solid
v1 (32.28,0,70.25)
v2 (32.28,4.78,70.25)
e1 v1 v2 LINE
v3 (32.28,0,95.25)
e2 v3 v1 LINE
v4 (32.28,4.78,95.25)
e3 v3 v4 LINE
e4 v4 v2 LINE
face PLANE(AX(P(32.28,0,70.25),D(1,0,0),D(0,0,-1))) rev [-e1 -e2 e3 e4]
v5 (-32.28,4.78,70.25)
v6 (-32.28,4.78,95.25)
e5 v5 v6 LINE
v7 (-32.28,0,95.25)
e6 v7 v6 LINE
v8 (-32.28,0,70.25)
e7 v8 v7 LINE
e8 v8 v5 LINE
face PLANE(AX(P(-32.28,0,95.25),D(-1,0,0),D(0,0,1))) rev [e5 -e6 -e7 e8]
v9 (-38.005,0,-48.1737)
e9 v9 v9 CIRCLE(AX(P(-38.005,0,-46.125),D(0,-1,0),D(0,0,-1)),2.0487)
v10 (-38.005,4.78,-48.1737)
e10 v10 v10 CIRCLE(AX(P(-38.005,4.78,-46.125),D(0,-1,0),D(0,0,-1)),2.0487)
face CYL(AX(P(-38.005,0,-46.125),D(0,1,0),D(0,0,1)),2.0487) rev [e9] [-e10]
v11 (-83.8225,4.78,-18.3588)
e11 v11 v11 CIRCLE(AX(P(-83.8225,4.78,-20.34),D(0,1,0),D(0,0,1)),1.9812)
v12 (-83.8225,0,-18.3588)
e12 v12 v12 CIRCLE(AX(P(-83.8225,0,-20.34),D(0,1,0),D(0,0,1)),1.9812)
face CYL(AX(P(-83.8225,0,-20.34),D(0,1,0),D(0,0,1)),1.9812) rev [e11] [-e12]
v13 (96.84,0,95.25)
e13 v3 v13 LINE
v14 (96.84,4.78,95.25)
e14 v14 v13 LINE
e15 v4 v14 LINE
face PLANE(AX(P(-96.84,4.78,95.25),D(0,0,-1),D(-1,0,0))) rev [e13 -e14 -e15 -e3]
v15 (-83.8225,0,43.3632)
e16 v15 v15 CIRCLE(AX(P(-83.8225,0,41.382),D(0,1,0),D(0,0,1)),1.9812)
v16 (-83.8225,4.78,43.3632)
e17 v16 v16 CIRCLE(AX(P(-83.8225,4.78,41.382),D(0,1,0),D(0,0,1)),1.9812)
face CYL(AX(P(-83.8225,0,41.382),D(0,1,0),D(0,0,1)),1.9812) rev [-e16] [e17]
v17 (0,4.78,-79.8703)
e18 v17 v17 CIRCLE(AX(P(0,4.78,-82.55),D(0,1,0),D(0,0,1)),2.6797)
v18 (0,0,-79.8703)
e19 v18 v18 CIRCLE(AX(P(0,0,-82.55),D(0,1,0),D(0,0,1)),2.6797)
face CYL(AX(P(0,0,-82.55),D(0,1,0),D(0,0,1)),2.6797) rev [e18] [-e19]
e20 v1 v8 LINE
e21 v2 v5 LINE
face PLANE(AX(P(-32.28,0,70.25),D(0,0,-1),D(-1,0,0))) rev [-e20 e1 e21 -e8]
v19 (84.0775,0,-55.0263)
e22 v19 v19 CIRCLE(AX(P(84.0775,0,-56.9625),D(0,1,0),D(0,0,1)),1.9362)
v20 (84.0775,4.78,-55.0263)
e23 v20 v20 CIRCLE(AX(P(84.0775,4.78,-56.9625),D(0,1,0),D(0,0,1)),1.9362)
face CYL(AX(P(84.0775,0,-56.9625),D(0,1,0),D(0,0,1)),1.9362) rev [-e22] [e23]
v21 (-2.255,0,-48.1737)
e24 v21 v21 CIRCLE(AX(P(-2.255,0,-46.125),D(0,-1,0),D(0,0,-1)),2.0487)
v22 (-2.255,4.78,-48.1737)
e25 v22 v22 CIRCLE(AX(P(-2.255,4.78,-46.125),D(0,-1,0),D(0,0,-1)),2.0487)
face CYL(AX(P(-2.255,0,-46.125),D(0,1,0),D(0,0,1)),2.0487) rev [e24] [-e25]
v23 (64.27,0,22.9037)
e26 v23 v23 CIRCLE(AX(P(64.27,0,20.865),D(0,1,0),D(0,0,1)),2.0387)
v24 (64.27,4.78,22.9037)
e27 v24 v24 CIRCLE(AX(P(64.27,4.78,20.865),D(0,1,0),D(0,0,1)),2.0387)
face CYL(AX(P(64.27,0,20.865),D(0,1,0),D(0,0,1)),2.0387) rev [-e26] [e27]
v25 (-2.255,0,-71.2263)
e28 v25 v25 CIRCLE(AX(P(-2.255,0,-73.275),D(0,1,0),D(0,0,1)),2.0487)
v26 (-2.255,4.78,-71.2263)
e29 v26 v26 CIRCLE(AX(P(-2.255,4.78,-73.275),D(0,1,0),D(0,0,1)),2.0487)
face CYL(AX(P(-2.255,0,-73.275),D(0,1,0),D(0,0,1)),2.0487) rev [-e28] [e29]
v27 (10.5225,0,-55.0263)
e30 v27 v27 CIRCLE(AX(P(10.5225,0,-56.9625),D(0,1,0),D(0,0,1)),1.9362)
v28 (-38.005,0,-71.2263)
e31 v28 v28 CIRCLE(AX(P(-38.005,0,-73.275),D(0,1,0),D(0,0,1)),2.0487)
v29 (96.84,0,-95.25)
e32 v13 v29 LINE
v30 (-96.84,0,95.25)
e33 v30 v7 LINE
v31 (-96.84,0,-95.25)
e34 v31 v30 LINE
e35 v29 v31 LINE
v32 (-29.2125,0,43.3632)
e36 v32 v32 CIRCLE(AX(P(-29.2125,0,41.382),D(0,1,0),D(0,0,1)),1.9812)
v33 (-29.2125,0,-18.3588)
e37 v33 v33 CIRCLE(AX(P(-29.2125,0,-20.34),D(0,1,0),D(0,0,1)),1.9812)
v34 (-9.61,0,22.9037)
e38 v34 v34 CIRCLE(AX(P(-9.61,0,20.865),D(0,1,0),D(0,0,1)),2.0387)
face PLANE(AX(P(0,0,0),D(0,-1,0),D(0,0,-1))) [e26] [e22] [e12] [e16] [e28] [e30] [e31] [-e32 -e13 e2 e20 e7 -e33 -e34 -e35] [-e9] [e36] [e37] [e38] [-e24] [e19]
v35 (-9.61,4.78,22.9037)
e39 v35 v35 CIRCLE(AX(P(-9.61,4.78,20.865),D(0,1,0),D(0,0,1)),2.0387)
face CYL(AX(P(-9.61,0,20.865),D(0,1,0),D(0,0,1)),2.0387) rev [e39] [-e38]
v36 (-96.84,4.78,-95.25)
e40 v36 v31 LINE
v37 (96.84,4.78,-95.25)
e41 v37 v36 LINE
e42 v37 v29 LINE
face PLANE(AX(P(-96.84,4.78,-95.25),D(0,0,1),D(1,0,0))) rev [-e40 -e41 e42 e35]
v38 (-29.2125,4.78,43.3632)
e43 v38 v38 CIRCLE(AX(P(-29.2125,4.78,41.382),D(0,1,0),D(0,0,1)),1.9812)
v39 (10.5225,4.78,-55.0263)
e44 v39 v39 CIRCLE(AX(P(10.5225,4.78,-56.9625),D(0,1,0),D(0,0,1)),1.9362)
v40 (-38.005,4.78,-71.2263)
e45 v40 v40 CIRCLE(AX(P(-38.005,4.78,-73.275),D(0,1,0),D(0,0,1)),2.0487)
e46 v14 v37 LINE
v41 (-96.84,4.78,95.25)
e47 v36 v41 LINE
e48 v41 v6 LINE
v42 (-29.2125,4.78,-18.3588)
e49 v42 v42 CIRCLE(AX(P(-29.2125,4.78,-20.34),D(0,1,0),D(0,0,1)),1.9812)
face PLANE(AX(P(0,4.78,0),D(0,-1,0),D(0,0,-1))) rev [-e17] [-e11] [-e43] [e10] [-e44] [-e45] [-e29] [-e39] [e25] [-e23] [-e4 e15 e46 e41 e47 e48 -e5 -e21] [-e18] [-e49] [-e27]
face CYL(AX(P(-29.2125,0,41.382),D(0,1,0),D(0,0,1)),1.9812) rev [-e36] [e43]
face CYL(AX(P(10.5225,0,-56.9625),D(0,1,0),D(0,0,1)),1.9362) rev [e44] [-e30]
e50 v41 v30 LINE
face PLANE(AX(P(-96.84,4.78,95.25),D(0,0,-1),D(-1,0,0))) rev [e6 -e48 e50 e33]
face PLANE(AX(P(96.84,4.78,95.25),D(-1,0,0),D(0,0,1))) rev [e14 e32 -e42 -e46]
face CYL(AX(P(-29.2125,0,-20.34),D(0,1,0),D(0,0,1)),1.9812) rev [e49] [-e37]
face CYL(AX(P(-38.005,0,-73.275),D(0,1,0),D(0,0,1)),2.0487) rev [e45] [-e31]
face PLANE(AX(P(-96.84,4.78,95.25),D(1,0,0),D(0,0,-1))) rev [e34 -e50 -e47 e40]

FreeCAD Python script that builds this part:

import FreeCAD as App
import Part
import Sketcher
from FreeCAD import Vector
Q = App.Units.Quantity

doc = App.newDocument("Part")
params = doc.addObject("Spreadsheet::Sheet", "Params")
for row, (alias, value) in enumerate([
    ("sketch1_height", "7.5 in"),
    ("pad1_length", "4.78 mm"),
    ("sketch2_diameter", "0.211 in"),
    ("sketch4_diameter", "0.156 in"),
], start=1):
    params.set(f"A{row}", alias)
    params.set(f"B{row}", "=" + value)
    params.setAlias(f"B{row}", alias)

body = doc.addObject("PartDesign::Body", "Body")

# Sketch on XZ plane
sketch1 = body.newObject("Sketcher::SketchObject", "Sketch")
sketch1.AttachmentSupport = (doc.getObject("XZ_Plane"), [""])
sketch1.MapMode = "FlatFace"
sketch1.addGeometry(Part.LineSegment(Vector(-96.84, -95.25, 0), Vector(-96.84, 95.25, 0)), False)
sketch1.addGeometry(Part.LineSegment(Vector(-96.84, 95.25, 0), Vector(96.84, 95.25, 0)), False)
sketch1.addGeometry(Part.LineSegment(Vector(96.84, 95.25, 0), Vector(96.84, -95.25, 0)), False)
sketch1.addGeometry(Part.LineSegment(Vector(96.84, -95.25, 0), Vector(-96.84, -95.25, 0)), False)
sketch1.addConstraint(Sketcher.Constraint("Coincident", 0, 2, 1, 1))
sketch1.addConstraint(Sketcher.Constraint("Coincident", 1, 2, 2, 1))
sketch1.addConstraint(Sketcher.Constraint("Coincident", 2, 2, 3, 1))
sketch1.addConstraint(Sketcher.Constraint("Coincident", 3, 2, 0, 1))
sketch1.addConstraint(Sketcher.Constraint("Vertical", 0))
sketch1.addConstraint(Sketcher.Constraint("Horizontal", 1))
sketch1.addConstraint(Sketcher.Constraint("Vertical", 2))
sketch1.addConstraint(Sketcher.Constraint("Horizontal", 3))
sketch1.addConstraint(Sketcher.Constraint("Symmetric", 0, 2, 2, 2, -1, 1))
sketch1.addConstraint(Sketcher.Constraint("DistanceY", 0, 1, 0, 2, Q("7.5 in")))
sketch1.addConstraint(Sketcher.Constraint("DistanceX", 1, 1, 1, 2, 193.68))
sketch1.setExpression("Constraints[9]", "Params.sketch1_height")
pad1 = body.newObject("PartDesign::Pad", "Pad")
pad1.Profile = sketch1
pad1.setExpression("Length", "Params.pad1_length")
pad1.Reversed = True

# Sketch on XZ plane
sketch2 = body.newObject("Sketcher::SketchObject", "Sketch001")
sketch2.AttachmentSupport = (doc.getObject("XZ_Plane"), [""])
sketch2.MapMode = "FlatFace"
sketch2.AttachmentOffset = App.Placement(Vector(0, 0, -4.78), App.Rotation())
sketch2.addGeometry(Part.Circle(Vector(0, -82.55, 0), Vector(0, 0, 1), 2.6797), False)
sketch2.addConstraint(Sketcher.Constraint("PointOnObject", 0, 3, -2))
sketch2.addConstraint(Sketcher.Constraint("Diameter", 0, Q("0.211 in")))
sketch2.addConstraint(Sketcher.Constraint("DistanceY", 0, 3, -1, 1, Q("3.25 in")))
sketch2.setExpression("Constraints[1]", "Params.sketch2_diameter")
pocket1 = body.newObject("PartDesign::Pocket", "Pocket")
pocket1.Profile = sketch2
pocket1.Type = "ThroughAll"
pocket1.Reversed = True

# Sketch on XZ plane
sketch3 = body.newObject("Sketcher::SketchObject", "Sketch002")
sketch3.AttachmentSupport = (doc.getObject("XZ_Plane"), [""])
sketch3.MapMode = "FlatFace"
sketch3.AttachmentOffset = App.Placement(Vector(0, 0, -4.78), App.Rotation())
sketch3.addGeometry(Part.LineSegment(Vector(-32.28, 95.25, 0), Vector(32.28, 95.25, 0)), False)
sketch3.addGeometry(Part.LineSegment(Vector(32.28, 95.25, 0), Vector(32.28, 70.25, 0)), False)
sketch3.addGeometry(Part.LineSegment(Vector(32.28, 70.25, 0), Vector(-32.28, 70.25, 0)), False)
sketch3.addGeometry(Part.LineSegment(Vector(-32.28, 70.25, 0), Vector(-32.28, 95.25, 0)), False)
sketch3.addConstraint(Sketcher.Constraint("Coincident", 0, 2, 1, 1))
sketch3.addConstraint(Sketcher.Constraint("Coincident", 1, 2, 2, 1))
sketch3.addConstraint(Sketcher.Constraint("Coincident", 2, 2, 3, 1))
sketch3.addConstraint(Sketcher.Constraint("Coincident", 3, 2, 0, 1))
sketch3.addConstraint(Sketcher.Constraint("Horizontal", 0))
sketch3.addConstraint(Sketcher.Constraint("Vertical", 1))
sketch3.addConstraint(Sketcher.Constraint("Horizontal", 2))
sketch3.addConstraint(Sketcher.Constraint("Vertical", 3))
sketch3.addConstraint(Sketcher.Constraint("DistanceY", -1, 1, 0, 2, Q("3.75 in")))
sketch3.addConstraint(Sketcher.Constraint("DistanceX", 0, 1, 0, 2, 64.56))
sketch3.addConstraint(Sketcher.Constraint("DistanceY", 1, 2, 1, 1, 25.0))
sketch3.addConstraint(Sketcher.Constraint("DistanceX", -1, 1, 0, 2, 32.28))
pocket2 = body.newObject("PartDesign::Pocket", "Pocket001")
pocket2.Profile = sketch3
pocket2.Type = "ThroughAll"
pocket2.Reversed = True

# Sketch on XZ plane
sketch4 = body.newObject("Sketcher::SketchObject", "Sketch003")
sketch4.AttachmentSupport = (doc.getObject("XZ_Plane"), [""])
sketch4.MapMode = "FlatFace"
sketch4.AttachmentOffset = App.Placement(Vector(0, 0, -4.78), App.Rotation())
sketch4.addGeometry(Part.Circle(Vector(10.5225, -56.9625, 0), Vector(0, 0, 1), 1.9362), False)
sketch4.addGeometry(Part.Circle(Vector(84.0775, -56.9625, 0), Vector(0, 0, 1), 1.9362), False)
sketch4.addGeometry(Part.Circle(Vector(-38.005, -73.275, 0), Vector(0, 0, 1), 2.0487), False)
sketch4.addGeometry(Part.Circle(Vector(-2.255, -73.275, 0), Vector(0, 0, 1), 2.0487), False)
sketch4.addGeometry(Part.Circle(Vector(-2.255, -46.125, 0), Vector(0, 0, 1), 2.0487), False)
sketch4.addGeometry(Part.Circle(Vector(-38.005, -46.125, 0), Vector(0, 0, 1), 2.0487), False)
sketch4.addGeometry(Part.Circle(Vector(-83.8225, 41.382, 0), Vector(0, 0, 1), 1.9812), False)
sketch4.addGeometry(Part.Circle(Vector(-83.8225, -20.34, 0), Vector(0, 0, 1), 1.9812), False)
sketch4.addGeometry(Part.Circle(Vector(-29.2125, -20.34, 0), Vector(0, 0, 1), 1.9812), False)
sketch4.addGeometry(Part.Circle(Vector(-29.2125, 41.382, 0), Vector(0, 0, 1), 1.9812), False)
sketch4.addGeometry(Part.Circle(Vector(64.27, 20.865, 0), Vector(0, 0, 1), 2.0387), False)
sketch4.addGeometry(Part.Circle(Vector(-9.61, 20.865, 0), Vector(0, 0, 1), 2.0387), False)
sketch4.addConstraint(Sketcher.Constraint("Equal", 0, 1))
sketch4.addConstraint(Sketcher.Constraint("Equal", 2, 3))
sketch4.addConstraint(Sketcher.Constraint("Equal", 3, 4))
sketch4.addConstraint(Sketcher.Constraint("Equal", 4, 5))
sketch4.addConstraint(Sketcher.Constraint("Equal", 6, 7))
sketch4.addConstraint(Sketcher.Constraint("Equal", 7, 8))
sketch4.addConstraint(Sketcher.Constraint("Equal", 8, 9))
sketch4.addConstraint(Sketcher.Constraint("Equal", 10, 11))
sketch4.addConstraint(Sketcher.Constraint("Horizontal", 0, 3, 1, 3))
sketch4.addConstraint(Sketcher.Constraint("Horizontal", 2, 3, 3, 3))
sketch4.addConstraint(Sketcher.Constraint("Horizontal", 4, 3, 5, 3))
sketch4.addConstraint(Sketcher.Constraint("Horizontal", 7, 3, 8, 3))
sketch4.addConstraint(Sketcher.Constraint("Horizontal", 6, 3, 9, 3))
sketch4.addConstraint(Sketcher.Constraint("Horizontal", 10, 3, 11, 3))
sketch4.addConstraint(Sketcher.Constraint("Vertical", 3, 3, 4, 3))
sketch4.addConstraint(Sketcher.Constraint("Vertical", 2, 3, 5, 3))
sketch4.addConstraint(Sketcher.Constraint("Vertical", 6, 3, 7, 3))
sketch4.addConstraint(Sketcher.Constraint("Vertical", 8, 3, 9, 3))
sketch4.addConstraint(Sketcher.Constraint("Diameter", 6, Q("0.156 in")))
sketch4.addConstraint(Sketcher.Constraint("Diameter", 0, 3.8724))
sketch4.addConstraint(Sketcher.Constraint("Diameter", 2, 4.0974))
sketch4.addConstraint(Sketcher.Constraint("Diameter", 10, 4.0774))
sketch4.addConstraint(Sketcher.Constraint("DistanceY", 7, 3, 6, 3, Q("2.43 in")))
sketch4.addConstraint(Sketcher.Constraint("DistanceX", 7, 3, 8, 3, Q("2.15 in")))
sketch4.addConstraint(Sketcher.Constraint("DistanceX", -1, 1, 0, 3, 10.5225))
sketch4.addConstraint(Sketcher.Constraint("DistanceY", 0, 3, -1, 1, 56.9625))
sketch4.addConstraint(Sketcher.Constraint("DistanceX", -1, 1, 1, 3, 84.0775))
sketch4.addConstraint(Sketcher.Constraint("DistanceX", 2, 3, -1, 1, 38.005))
sketch4.addConstraint(Sketcher.Constraint("DistanceY", 2, 3, -1, 1, 73.275))
sketch4.addConstraint(Sketcher.Constraint("DistanceX", 3, 3, -1, 1, 2.255))
sketch4.addConstraint(Sketcher.Constraint("DistanceY", 4, 3, -1, 1, 46.125))
sketch4.addConstraint(Sketcher.Constraint("DistanceX", 6, 3, -1, 1, 83.8225))
sketch4.addConstraint(Sketcher.Constraint("DistanceY", -1, 1, 6, 3, 41.382))
sketch4.addConstraint(Sketcher.Constraint("DistanceX", -1, 1, 10, 3, 64.27))
sketch4.addConstraint(Sketcher.Constraint("DistanceY", -1, 1, 10, 3, 20.865))
sketch4.addConstraint(Sketcher.Constraint("DistanceX", 11, 3, -1, 1, 9.61))
sketch4.setExpression("Constraints[18]", "Params.sketch4_diameter")
pocket3 = body.newObject("PartDesign::Pocket", "Pocket002")
pocket3.Profile = sketch4
pocket3.Type = "ThroughAll"
pocket3.Reversed = True

doc.recompute()
